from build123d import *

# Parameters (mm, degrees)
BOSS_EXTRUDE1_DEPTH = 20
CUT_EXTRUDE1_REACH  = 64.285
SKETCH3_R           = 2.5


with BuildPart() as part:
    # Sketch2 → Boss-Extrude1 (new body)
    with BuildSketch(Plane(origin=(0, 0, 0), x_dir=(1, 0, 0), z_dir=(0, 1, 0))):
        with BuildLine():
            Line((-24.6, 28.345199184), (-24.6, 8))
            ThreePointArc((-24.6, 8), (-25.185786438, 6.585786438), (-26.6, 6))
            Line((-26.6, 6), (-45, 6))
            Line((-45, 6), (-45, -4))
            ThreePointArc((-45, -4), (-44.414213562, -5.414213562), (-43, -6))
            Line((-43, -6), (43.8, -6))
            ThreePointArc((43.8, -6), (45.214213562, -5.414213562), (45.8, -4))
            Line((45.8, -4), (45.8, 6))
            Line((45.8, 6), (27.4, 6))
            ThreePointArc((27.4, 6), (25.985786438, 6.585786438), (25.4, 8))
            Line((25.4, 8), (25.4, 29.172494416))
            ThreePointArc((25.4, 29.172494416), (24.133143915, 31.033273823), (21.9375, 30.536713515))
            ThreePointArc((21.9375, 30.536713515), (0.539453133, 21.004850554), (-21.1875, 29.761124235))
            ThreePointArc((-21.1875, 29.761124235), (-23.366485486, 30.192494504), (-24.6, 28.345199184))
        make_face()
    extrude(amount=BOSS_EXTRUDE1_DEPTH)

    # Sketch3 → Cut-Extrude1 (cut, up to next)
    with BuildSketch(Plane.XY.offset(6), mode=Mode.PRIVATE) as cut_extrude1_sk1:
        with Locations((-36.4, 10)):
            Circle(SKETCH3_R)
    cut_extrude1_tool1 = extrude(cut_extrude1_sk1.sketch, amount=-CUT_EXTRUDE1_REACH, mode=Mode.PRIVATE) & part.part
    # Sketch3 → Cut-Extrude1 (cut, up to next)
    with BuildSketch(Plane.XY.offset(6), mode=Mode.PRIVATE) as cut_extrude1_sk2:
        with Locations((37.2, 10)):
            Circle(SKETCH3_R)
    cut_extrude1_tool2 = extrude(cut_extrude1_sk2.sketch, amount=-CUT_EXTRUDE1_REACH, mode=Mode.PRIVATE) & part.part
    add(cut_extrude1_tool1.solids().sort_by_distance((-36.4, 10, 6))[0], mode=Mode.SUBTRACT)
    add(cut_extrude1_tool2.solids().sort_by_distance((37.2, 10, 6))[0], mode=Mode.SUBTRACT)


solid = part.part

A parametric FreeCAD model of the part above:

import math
import FreeCAD as App
import Part
import Sketcher

doc = App.newDocument("Part")
body = doc.addObject("PartDesign::Body", "Body")

# Sketch on XZ plane
sketch1 = body.newObject("Sketcher::SketchObject", "Sketch")
sketch1.AttachmentSupport = (doc.getObject("XZ_Plane"), [""])
sketch1.MapMode = "FlatFace"
sketch1.addGeometry(Part.LineSegment(App.Vector(-24.6, -28.3, 0), App.Vector(-24.6, -8, 0)), False)
sketch1.addGeometry(Part.ArcOfCircle(Part.Circle(App.Vector(-26.6, -8, 0), App.Vector(0, 0, 1), 2), math.radians(0), math.radians(90)), False)
sketch1.addGeometry(Part.LineSegment(App.Vector(-26.6, -6, 0), App.Vector(-45, -6, 0)), False)
sketch1.addGeometry(Part.LineSegment(App.Vector(-45, -6, 0), App.Vector(-45, 4, 0)), False)
sketch1.addGeometry(Part.ArcOfCircle(Part.Circle(App.Vector(-43, 4, 0), App.Vector(0, 0, 1), 2), math.radians(90), math.radians(180)), False)
sketch1.addGeometry(Part.LineSegment(App.Vector(-43, 6, 0), App.Vector(43.8, 6, 0)), False)
sketch1.addGeometry(Part.ArcOfCircle(Part.Circle(App.Vector(43.8, 4, 0), App.Vector(0, 0, 1), 2), math.radians(0), math.radians(90)), False)
sketch1.addGeometry(Part.LineSegment(App.Vector(45.8, 4, 0), App.Vector(45.8, -6, 0)), False)
sketch1.addGeometry(Part.LineSegment(App.Vector(45.8, -6, 0), App.Vector(27.4, -6, 0)), False)
sketch1.addGeometry(Part.ArcOfCircle(Part.Circle(App.Vector(27.4, -8, 0), App.Vector(0, 0, 1), 2), math.radians(90), math.radians(180)), False)
sketch1.addGeometry(Part.LineSegment(App.Vector(25.4, -8, 0), App.Vector(25.4, -29.2, 0)), False)
sketch1.addGeometry(Part.ArcOfCircle(Part.Circle(App.Vector(23.4, -29.2, 0), App.Vector(0, 0, 1), 2), math.radians(-137), math.radians(0)), False)
sketch1.addGeometry(Part.ArcOfCircle(Part.Circle(App.Vector(0, -51, 0), App.Vector(0, 0, 1), 30), math.radians(43), math.radians(135)), False)
sketch1.addGeometry(Part.ArcOfCircle(Part.Circle(App.Vector(-22.6, -28.3, 0), App.Vector(0, 0, 1), 2), math.radians(180), math.radians(315)), False)
sketch1.addConstraint(Sketcher.Constraint("Tangent", 0, 2, 1, 1))
sketch1.addConstraint(Sketcher.Constraint("Tangent", 1, 2, 2, 1))
sketch1.addConstraint(Sketcher.Constraint("Coincident", 2, 2, 3, 1))
sketch1.addConstraint(Sketcher.Constraint("Tangent", 3, 2, 4, 2))
sketch1.addConstraint(Sketcher.Constraint("Tangent", 4, 1, 5, 1))
sketch1.addConstraint(Sketcher.Constraint("Tangent", 5, 2, 6, 2))
sketch1.addConstraint(Sketcher.Constraint("Tangent", 6, 1, 7, 1))
sketch1.addConstraint(Sketcher.Constraint("Coincident", 7, 2, 8, 1))
sketch1.addConstraint(Sketcher.Constraint("Tangent", 8, 2, 9, 1))
sketch1.addConstraint(Sketcher.Constraint("Tangent", 9, 2, 10, 1))
sketch1.addConstraint(Sketcher.Constraint("Tangent", 10, 2, 11, 2))
sketch1.addConstraint(Sketcher.Constraint("Tangent", 11, 1, 12, 1))
sketch1.addConstraint(Sketcher.Constraint("Tangent", 12, 2, 13, 2))
sketch1.addConstraint(Sketcher.Constraint("Tangent", 13, 1, 0, 1))
sketch1.addConstraint(Sketcher.Constraint("Vertical", 0))
sketch1.addConstraint(Sketcher.Constraint("Horizontal", 2))
sketch1.addConstraint(Sketcher.Constraint("Vertical", 3))
sketch1.addConstraint(Sketcher.Constraint("Horizontal", 5))
sketch1.addConstraint(Sketcher.Constraint("Vertical", 7))
sketch1.addConstraint(Sketcher.Constraint("Horizontal", 8))
sketch1.addConstraint(Sketcher.Constraint("Vertical", 10))
sketch1.addConstraint(Sketcher.Constraint("Equal", 1, 4))
sketch1.addConstraint(Sketcher.Constraint("Equal", 4, 6))
sketch1.addConstraint(Sketcher.Constraint("Equal", 6, 9))
sketch1.addConstraint(Sketcher.Constraint("Equal", 9, 11))
sketch1.addConstraint(Sketcher.Constraint("Equal", 11, 13))
sketch1.addConstraint(Sketcher.Constraint("PointOnObject", 12, 3, -2))
sketch1.addConstraint(Sketcher.Constraint("Horizontal", 1, 3, 9, 3))
sketch1.addConstraint(Sketcher.Constraint("Equal", 2, 8))
sketch1.addConstraint(Sketcher.Constraint("Radius", 1, 2.0))
sketch1.addConstraint(Sketcher.Constraint("Radius", 12, 30.0))
sketch1.addConstraint(Sketcher.Constraint("DistanceY", 3, 1, 3, 2, 10.0))
sketch1.addConstraint(Sketcher.Constraint("DistanceX", 2, 2, 2, 1, 18.4))
sketch1.addConstraint(Sketcher.Constraint("DistanceX", 5, 1, 5, 2, 86.8))
sketch1.addConstraint(Sketcher.Constraint("DistanceY", 1, 3, -1, 1, 8.0))
sketch1.addConstraint(Sketcher.Constraint("DistanceX", 4, 3, -1, 1, 43.0))
sketch1.addConstraint(Sketcher.Constraint("DistanceY", 12, 3, -1, 1, 51.0))
pad1 = body.newObject("PartDesign::Pad", "Pad")
pad1.Profile = sketch1
pad1.Length = 20
pad1.Reversed = True

# Sketch on XY plane
sketch2 = body.newObject("Sketcher::SketchObject", "Sketch001")
sketch2.AttachmentSupport = (doc.getObject("XY_Plane"), [""])
sketch2.MapMode = "FlatFace"
sketch2.AttachmentOffset = App.Placement(App.Vector(0, 0, 6), App.Rotation())
sketch2.addGeometry(Part.Circle(App.Vector(-36.4, 10, 0), App.Vector(0, 0, 1), 2.5), False)
sketch2.addConstraint(Sketcher.Constraint("Diameter", 0, 5.0))
sketch2.addConstraint(Sketcher.Constraint("DistanceY", -1, 1, 0, 3, 10.0))
sketch2.addConstraint(Sketcher.Constraint("DistanceX", 0, 3, -1, 1, 36.4))
pocket1 = body.newObject("PartDesign::Pocket", "Pocket")
pocket1.Profile = sketch2
pocket1.Type = "UpToFirst"

# Sketch on XY plane
sketch3 = body.newObject("Sketcher::SketchObject", "Sketch002")
sketch3.AttachmentSupport = (doc.getObject("XY_Plane"), [""])
sketch3.MapMode = "FlatFace"
sketch3.AttachmentOffset = App.Placement(App.Vector(0, 0, 6), App.Rotation())
sketch3.addGeometry(Part.Circle(App.Vector(37.2, 10, 0), App.Vector(0, 0, 1), 2.5), False)
sketch3.addConstraint(Sketcher.Constraint("Diameter", 0, 5.0))
sketch3.addConstraint(Sketcher.Constraint("DistanceY", -1, 1, 0, 3, 10.0))
sketch3.addConstraint(Sketcher.Constraint("DistanceX", -1, 1, 0, 3, 37.2))
pocket2 = body.newObject("PartDesign::Pocket", "Pocket001")
pocket2.Profile = sketch3
pocket2.Type = "UpToFirst"

doc.recompute()
